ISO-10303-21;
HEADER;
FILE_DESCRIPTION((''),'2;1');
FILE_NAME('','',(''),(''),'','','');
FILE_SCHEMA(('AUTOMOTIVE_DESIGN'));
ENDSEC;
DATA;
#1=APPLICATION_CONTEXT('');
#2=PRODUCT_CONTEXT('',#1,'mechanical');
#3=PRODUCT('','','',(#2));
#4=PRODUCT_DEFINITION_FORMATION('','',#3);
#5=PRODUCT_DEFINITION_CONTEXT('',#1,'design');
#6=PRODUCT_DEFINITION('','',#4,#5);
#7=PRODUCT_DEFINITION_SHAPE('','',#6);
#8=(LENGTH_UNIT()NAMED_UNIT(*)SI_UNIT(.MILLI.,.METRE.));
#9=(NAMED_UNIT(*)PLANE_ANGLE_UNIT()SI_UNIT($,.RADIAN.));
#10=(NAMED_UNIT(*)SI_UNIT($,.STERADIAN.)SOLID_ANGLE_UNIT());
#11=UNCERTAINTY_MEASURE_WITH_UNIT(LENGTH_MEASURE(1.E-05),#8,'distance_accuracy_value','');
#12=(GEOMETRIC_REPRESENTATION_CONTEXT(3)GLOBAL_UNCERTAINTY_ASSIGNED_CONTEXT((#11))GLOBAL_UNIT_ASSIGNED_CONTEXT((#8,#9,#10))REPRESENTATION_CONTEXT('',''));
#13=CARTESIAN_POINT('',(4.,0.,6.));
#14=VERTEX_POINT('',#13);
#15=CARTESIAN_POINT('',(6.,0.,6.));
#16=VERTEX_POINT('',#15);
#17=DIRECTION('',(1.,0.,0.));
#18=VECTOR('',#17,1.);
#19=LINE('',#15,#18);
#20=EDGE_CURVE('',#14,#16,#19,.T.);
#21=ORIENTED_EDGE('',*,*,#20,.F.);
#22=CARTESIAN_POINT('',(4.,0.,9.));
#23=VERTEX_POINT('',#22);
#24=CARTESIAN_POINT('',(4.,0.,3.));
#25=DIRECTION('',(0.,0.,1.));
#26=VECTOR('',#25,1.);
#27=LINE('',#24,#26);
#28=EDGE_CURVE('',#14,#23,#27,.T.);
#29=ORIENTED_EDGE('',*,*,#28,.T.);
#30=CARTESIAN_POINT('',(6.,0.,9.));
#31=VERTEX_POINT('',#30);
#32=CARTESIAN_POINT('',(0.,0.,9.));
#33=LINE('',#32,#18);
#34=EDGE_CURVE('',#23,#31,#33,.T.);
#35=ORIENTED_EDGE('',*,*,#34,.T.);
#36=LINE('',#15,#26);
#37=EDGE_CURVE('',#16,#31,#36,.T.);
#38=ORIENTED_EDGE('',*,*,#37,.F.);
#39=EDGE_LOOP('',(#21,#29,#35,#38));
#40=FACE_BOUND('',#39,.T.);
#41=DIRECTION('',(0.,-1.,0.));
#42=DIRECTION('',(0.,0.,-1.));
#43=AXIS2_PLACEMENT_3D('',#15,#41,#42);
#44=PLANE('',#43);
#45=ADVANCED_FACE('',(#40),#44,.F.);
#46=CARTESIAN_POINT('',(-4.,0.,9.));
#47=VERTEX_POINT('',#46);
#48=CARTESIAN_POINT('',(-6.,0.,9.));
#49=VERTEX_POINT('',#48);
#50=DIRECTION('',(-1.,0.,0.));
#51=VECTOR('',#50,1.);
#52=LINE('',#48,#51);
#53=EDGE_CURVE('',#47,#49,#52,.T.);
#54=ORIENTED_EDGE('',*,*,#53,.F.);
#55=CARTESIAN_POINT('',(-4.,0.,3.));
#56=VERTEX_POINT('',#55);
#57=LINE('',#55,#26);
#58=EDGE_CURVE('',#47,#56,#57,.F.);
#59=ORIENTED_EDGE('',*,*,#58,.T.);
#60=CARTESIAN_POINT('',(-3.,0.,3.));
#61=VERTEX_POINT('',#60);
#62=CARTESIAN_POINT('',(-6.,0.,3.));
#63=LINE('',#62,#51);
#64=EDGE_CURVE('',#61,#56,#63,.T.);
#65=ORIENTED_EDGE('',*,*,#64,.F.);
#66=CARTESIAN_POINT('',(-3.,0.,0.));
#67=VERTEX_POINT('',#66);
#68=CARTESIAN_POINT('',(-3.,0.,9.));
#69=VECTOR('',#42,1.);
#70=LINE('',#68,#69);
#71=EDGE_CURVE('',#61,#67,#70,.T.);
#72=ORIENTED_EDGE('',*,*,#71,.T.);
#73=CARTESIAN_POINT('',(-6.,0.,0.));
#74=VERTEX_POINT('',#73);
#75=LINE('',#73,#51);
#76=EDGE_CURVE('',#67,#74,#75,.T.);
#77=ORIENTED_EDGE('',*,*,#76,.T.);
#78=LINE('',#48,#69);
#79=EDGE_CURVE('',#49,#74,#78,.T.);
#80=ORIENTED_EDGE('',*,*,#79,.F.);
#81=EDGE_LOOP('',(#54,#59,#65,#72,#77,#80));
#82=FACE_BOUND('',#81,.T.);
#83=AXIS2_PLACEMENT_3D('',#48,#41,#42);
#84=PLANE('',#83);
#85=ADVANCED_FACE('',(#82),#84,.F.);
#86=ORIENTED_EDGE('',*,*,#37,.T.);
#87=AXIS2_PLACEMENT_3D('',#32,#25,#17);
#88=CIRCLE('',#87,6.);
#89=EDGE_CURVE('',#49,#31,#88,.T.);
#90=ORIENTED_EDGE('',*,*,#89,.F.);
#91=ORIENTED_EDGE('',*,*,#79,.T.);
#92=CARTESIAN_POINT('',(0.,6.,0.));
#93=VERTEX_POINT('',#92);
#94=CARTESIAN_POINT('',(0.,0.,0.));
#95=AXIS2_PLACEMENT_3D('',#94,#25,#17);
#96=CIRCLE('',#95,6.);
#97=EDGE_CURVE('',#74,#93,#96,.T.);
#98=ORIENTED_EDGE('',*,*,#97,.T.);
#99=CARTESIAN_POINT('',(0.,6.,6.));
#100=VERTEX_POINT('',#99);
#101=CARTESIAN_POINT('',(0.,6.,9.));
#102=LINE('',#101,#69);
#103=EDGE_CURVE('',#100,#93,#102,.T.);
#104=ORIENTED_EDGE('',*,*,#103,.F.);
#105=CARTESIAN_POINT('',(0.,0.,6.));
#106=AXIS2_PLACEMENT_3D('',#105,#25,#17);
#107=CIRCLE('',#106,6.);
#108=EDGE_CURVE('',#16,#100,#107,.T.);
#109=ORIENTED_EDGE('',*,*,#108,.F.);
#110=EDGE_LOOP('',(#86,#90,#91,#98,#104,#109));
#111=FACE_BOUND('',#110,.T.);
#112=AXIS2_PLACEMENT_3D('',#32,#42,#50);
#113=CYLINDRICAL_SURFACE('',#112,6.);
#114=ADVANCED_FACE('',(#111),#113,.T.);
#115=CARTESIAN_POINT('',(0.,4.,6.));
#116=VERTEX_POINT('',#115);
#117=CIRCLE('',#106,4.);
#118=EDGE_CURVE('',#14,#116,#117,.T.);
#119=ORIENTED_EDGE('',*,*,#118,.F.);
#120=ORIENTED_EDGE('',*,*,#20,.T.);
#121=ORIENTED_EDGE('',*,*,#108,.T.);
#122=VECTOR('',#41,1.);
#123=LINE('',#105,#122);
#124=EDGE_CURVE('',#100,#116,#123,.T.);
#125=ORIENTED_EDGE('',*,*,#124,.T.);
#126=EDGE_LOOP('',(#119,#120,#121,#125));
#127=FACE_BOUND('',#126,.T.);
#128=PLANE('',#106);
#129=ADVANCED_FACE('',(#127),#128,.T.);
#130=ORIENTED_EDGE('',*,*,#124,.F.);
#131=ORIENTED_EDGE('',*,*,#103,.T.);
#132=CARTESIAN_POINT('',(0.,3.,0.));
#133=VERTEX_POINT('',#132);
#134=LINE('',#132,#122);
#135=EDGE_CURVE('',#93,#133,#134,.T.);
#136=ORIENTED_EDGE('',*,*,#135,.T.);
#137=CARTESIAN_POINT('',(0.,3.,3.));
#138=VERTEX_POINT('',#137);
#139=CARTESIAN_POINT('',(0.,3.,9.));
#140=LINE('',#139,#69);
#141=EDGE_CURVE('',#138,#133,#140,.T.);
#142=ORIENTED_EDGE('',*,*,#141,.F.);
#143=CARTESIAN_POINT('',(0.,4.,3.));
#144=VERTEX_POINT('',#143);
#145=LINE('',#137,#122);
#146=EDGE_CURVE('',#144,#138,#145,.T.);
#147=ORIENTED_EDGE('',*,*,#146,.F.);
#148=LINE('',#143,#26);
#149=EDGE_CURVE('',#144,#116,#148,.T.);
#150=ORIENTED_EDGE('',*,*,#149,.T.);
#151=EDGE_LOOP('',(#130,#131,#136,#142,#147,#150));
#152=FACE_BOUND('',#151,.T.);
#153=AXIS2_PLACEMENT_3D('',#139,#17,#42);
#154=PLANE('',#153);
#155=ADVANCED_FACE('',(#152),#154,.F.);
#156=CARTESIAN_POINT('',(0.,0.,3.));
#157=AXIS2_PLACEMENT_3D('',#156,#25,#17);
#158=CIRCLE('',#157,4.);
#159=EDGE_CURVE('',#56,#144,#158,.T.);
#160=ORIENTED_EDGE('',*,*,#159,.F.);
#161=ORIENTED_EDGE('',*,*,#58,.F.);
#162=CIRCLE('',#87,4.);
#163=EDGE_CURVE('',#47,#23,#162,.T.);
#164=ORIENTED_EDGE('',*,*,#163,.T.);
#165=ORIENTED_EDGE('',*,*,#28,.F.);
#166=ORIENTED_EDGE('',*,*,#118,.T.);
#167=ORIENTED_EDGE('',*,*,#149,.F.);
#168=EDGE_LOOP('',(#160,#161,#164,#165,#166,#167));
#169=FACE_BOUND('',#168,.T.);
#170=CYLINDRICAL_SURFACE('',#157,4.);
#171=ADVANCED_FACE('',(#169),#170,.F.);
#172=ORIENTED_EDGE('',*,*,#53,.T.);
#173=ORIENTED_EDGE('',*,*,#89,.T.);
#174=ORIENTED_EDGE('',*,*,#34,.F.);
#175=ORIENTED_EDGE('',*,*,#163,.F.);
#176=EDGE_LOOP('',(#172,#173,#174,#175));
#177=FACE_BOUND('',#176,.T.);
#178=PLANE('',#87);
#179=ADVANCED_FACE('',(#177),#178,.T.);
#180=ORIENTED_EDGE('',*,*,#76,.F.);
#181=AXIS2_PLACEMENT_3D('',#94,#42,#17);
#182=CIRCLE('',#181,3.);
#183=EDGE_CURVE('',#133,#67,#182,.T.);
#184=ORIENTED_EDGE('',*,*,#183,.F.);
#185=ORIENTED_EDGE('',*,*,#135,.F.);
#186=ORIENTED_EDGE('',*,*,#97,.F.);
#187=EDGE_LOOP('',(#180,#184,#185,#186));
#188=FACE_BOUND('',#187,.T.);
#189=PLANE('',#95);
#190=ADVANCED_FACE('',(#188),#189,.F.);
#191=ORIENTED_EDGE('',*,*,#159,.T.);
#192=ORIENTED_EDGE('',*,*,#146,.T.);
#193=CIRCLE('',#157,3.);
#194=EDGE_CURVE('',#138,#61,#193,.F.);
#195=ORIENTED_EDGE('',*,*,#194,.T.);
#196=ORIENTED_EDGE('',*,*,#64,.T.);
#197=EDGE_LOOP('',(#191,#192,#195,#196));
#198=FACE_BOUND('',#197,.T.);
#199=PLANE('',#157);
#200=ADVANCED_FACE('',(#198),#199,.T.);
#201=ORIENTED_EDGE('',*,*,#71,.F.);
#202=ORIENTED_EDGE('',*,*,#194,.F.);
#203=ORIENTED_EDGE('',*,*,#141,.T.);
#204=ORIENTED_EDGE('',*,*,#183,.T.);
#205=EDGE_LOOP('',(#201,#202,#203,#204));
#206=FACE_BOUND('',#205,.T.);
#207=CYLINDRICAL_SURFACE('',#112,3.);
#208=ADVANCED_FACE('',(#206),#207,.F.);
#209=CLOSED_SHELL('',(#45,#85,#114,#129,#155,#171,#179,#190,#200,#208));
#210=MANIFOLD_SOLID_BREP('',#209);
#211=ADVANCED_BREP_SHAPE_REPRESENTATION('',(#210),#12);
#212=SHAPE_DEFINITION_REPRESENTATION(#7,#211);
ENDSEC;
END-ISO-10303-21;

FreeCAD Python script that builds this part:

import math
import FreeCAD as App
import Part
import Sketcher
from FreeCAD import Vector


def add_polygon(sketch, points):
    """Adds a closed chain of lines whose ends are joined by coincident constraints."""
    first, n = sketch.GeometryCount, len(points)
    for a, b in zip(points, points[1:] + points[:1]):
        sketch.addGeometry(Part.LineSegment(App.Vector(*a, 0), App.Vector(*b, 0)), False)
    for i in range(n):
        sketch.addConstraint(Sketcher.Constraint("Coincident", first + i, 2, first + (i + 1) % n, 1))

doc = App.newDocument("Part")
params = doc.addObject("Spreadsheet::Sheet", "Params")
for row, (alias, value) in enumerate([
    ("sketch1_radius", "6 mm"),
    ("sketch1_radius2", "3 mm"),
    ("pad1_length", "9 mm"),
    ("sketch2_width", "6 mm"),
    ("pocket1_length", "3 mm"),
    ("sketch3_diameter", "8 mm"),
    ("pocket2_length", "6 mm"),
], start=1):
    params.set(f"A{row}", alias)
    params.set(f"B{row}", "=" + value)
    params.setAlias(f"B{row}", alias)

body = doc.addObject("PartDesign::Body", "Body")

# Sketch on XY plane
sketch1 = doc.addObject("Sketcher::SketchObject", "Sketch")
body.addObject(sketch1)
sketch1.AttachmentSupport = (doc.XY_Plane, [""])
sketch1.MapMode = "FlatFace"
sketch1.addGeometry([
    Part.LineSegment(Vector(-3, 0, 0), Vector(-6, 0, 0)),
    Part.ArcOfCircle(Part.Circle(Vector(0, 0, 0), Vector(0, 0, 1), 6), math.radians(180), math.radians(450)),
    Part.LineSegment(Vector(0, 6, 0), Vector(0, 3, 0)),
    Part.ArcOfCircle(Part.Circle(Vector(0, 0, 0), Vector(0, 0, 1), 3), math.radians(180), math.radians(450)),
], False)
sketch1.addConstraint([
    Sketcher.Constraint("Coincident", 0, 2, 1, 1),
    Sketcher.Constraint("Coincident", 1, 2, 2, 1),
    Sketcher.Constraint("Coincident", 2, 2, 3, 2),
    Sketcher.Constraint("Coincident", 3, 1, 0, 1),
    Sketcher.Constraint("Horizontal", 0),
    Sketcher.Constraint("Vertical", 2),
    Sketcher.Constraint("Coincident", 1, 3, -1, 1),
    Sketcher.Constraint("Coincident", 3, 3, -1, 1),
    Sketcher.Constraint("PointOnObject", 0, 2, -1),
    Sketcher.Constraint("PointOnObject", 1, 2, -2),
    Sketcher.Constraint("Radius", 1, 6.0),
    Sketcher.Constraint("Radius", 3, 3.0),
])
sketch1.setExpression("Constraints[10]", "Params.sketch1_radius")
sketch1.setExpression("Constraints[11]", "Params.sketch1_radius2")
pad1 = doc.addObject("PartDesign::Pad", "Pad")
body.addObject(pad1)
pad1.Profile = sketch1
pad1.setExpression("Length", "Params.pad1_length")

# Sketch on XY plane
sketch2 = doc.addObject("Sketcher::SketchObject", "Sketch001")
body.addObject(sketch2)
sketch2.AttachmentSupport = (doc.XY_Plane, [""])
sketch2.MapMode = "FlatFace"
sketch2.AttachmentOffset = App.Placement(Vector(0, 0, 9), App.Rotation())
add_polygon(sketch2, [(0, 6), (0, 0), (6, 0), (6, 6)])  # lines 0-3
sketch2.addConstraint([
    Sketcher.Constraint("Vertical", 0),
    Sketcher.Constraint("Horizontal", 1),
    Sketcher.Constraint("Vertical", 2),
    Sketcher.Constraint("Horizontal", 3),
    Sketcher.Constraint("Coincident", 0, 2, -1, 1),
    Sketcher.Constraint("Equal", 3, 0),
    Sketcher.Constraint("DistanceX", 1, 1, 1, 2, 6.0),
])
sketch2.setExpression("Constraints[10]", "Params.sketch2_width")
pocket1 = doc.addObject("PartDesign::Pocket", "Pocket")
body.addObject(pocket1)
pocket1.Profile = sketch2
pocket1.setExpression("Length", "Params.pocket1_length")

# Sketch on XY plane
sketch3 = doc.addObject("Sketcher::SketchObject", "Sketch002")
body.addObject(sketch3)
sketch3.AttachmentSupport = (doc.XY_Plane, [""])
sketch3.MapMode = "FlatFace"
sketch3.AttachmentOffset = App.Placement(Vector(0, 0, 9), App.Rotation())
sketch3.addGeometry(Part.Circle(Vector(0, 0, 0), Vector(0, 0, 1), 4), False)
sketch3.addConstraint([
    Sketcher.Constraint("Coincident", 0, 3, -1, 1),
    Sketcher.Constraint("Diameter", 0, 8.0),
])
sketch3.setExpression("Constraints[1]", "Params.sketch3_diameter")
pocket2 = doc.addObject("PartDesign::Pocket", "Pocket001")
body.addObject(pocket2)
pocket2.Profile = sketch3
pocket2.setExpression("Length", "Params.pocket2_length")

doc.recompute()
